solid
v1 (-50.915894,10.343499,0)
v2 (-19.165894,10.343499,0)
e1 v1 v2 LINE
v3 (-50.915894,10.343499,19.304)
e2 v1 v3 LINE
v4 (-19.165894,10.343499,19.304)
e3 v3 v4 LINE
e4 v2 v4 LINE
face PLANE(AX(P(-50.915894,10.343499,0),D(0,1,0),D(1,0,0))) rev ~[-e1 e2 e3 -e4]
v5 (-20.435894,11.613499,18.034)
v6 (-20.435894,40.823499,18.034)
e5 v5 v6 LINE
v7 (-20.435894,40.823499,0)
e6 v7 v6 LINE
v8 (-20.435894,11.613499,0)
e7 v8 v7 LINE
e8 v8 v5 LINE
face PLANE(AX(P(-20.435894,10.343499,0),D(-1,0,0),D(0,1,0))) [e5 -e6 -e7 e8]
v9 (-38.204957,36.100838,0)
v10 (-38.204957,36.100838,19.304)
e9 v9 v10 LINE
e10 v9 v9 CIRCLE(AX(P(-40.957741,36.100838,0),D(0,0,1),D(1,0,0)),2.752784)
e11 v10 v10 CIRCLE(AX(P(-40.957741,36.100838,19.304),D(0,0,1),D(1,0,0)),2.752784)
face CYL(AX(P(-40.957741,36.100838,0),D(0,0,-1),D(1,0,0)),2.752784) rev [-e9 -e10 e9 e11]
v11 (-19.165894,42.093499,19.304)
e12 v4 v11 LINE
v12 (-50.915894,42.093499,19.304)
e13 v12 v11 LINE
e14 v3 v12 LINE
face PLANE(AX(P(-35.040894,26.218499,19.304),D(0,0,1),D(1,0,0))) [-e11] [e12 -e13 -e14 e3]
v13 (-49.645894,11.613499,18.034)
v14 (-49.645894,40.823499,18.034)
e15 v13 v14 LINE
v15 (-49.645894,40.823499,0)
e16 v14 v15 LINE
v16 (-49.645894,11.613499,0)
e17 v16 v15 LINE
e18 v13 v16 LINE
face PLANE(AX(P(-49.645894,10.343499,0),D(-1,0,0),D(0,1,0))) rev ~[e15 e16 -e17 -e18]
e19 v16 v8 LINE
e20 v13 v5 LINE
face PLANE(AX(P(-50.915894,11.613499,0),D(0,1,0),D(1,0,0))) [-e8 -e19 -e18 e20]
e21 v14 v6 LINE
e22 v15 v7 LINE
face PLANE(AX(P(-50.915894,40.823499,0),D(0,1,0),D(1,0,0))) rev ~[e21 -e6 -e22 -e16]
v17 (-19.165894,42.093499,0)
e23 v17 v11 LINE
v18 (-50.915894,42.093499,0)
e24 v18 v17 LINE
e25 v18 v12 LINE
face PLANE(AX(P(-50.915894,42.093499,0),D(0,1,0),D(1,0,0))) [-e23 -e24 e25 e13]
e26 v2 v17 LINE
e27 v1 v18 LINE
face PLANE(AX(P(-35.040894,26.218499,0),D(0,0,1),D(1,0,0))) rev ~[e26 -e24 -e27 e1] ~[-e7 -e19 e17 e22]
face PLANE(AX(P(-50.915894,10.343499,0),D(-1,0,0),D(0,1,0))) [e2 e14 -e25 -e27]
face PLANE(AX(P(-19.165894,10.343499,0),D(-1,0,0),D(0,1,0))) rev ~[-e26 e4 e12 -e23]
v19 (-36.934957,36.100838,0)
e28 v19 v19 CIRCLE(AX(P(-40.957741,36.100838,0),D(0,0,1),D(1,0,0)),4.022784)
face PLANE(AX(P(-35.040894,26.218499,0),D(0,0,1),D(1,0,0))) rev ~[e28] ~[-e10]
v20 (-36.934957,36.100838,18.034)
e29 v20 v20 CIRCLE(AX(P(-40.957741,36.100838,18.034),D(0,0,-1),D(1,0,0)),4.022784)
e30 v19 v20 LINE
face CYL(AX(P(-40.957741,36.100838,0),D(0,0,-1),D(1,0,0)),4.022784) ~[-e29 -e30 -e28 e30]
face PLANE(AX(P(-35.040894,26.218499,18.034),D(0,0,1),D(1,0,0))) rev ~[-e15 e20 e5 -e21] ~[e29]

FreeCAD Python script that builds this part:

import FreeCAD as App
import Part
import Sketcher
from FreeCAD import Vector
Q = App.Units.Quantity


def faces_at(feature, points):
    """Names of the faces that lie closest to the given points."""
    faces = feature.Shape.Faces
    near = lambda p: min(range(len(faces)), key=lambda i: faces[i].distToShape(Part.Vertex(*p))[0])
    return sorted({f"Face{near(p) + 1}" for p in points})


def add_polygon(sketch, points):
    """Adds a closed chain of lines whose ends are joined by coincident constraints."""
    first, n = sketch.GeometryCount, len(points)
    for a, b in zip(points, points[1:] + points[:1]):
        sketch.addGeometry(Part.LineSegment(App.Vector(*a, 0), App.Vector(*b, 0)), False)
    for i in range(n):
        sketch.addConstraint(Sketcher.Constraint("Coincident", first + i, 2, first + (i + 1) % n, 1))

doc = App.newDocument("Part")
body = doc.addObject("PartDesign::Body", "Body")

# Sketch on XY plane
sketch1 = body.newObject("Sketcher::SketchObject", "Sketch")
sketch1.AttachmentSupport = (doc.getObject("XY_Plane"), [""])
sketch1.MapMode = "FlatFace"
add_polygon(sketch1, [(-50.9, 42.1), (-50.9, 10.3), (-19.2, 10.3), (-19.2, 42.1)])  # lines 0-3
sketch1.addGeometry(Part.Circle(Vector(-41, 36.1, 0), Vector(0, 0, 1), 2.8), False)  # 4
sketch1.addConstraint([
    Sketcher.Constraint("Vertical", 0),
    Sketcher.Constraint("Horizontal", 1),
    Sketcher.Constraint("Vertical", 2),
    Sketcher.Constraint("Horizontal", 3),
    Sketcher.Constraint("Equal", 3, 0),
    Sketcher.Constraint("DistanceX", 1, 1, 1, 2, Q("1.25 in")),
    Sketcher.Constraint("Diameter", 4, Q("5.505568 mm")),
    Sketcher.Constraint("DistanceY", -1, 1, 0, 2, Q("10.343499 mm")),
    Sketcher.Constraint("DistanceX", 4, 3, -1, 1, Q("40.957741 mm")),
    Sketcher.Constraint("DistanceY", -1, 1, 4, 3, Q("36.100838 mm")),
    Sketcher.Constraint("DistanceX", 0, 2, -1, 1, Q("50.915894 mm")),
])
pad1 = body.newObject("PartDesign::Pad", "Pad")
pad1.Profile = sketch1
pad1.Length = Q("0.76 in")
doc.recompute()

thickness = body.newObject("PartDesign::Thickness", "Thickness")
thickness.Base = (pad1, faces_at(pad1, [(-35.041, 26.218, 0)]))
thickness.Value = Q("0.05 in")
thickness.Reversed = True
thickness.Join = "Arc"

doc.recompute()
